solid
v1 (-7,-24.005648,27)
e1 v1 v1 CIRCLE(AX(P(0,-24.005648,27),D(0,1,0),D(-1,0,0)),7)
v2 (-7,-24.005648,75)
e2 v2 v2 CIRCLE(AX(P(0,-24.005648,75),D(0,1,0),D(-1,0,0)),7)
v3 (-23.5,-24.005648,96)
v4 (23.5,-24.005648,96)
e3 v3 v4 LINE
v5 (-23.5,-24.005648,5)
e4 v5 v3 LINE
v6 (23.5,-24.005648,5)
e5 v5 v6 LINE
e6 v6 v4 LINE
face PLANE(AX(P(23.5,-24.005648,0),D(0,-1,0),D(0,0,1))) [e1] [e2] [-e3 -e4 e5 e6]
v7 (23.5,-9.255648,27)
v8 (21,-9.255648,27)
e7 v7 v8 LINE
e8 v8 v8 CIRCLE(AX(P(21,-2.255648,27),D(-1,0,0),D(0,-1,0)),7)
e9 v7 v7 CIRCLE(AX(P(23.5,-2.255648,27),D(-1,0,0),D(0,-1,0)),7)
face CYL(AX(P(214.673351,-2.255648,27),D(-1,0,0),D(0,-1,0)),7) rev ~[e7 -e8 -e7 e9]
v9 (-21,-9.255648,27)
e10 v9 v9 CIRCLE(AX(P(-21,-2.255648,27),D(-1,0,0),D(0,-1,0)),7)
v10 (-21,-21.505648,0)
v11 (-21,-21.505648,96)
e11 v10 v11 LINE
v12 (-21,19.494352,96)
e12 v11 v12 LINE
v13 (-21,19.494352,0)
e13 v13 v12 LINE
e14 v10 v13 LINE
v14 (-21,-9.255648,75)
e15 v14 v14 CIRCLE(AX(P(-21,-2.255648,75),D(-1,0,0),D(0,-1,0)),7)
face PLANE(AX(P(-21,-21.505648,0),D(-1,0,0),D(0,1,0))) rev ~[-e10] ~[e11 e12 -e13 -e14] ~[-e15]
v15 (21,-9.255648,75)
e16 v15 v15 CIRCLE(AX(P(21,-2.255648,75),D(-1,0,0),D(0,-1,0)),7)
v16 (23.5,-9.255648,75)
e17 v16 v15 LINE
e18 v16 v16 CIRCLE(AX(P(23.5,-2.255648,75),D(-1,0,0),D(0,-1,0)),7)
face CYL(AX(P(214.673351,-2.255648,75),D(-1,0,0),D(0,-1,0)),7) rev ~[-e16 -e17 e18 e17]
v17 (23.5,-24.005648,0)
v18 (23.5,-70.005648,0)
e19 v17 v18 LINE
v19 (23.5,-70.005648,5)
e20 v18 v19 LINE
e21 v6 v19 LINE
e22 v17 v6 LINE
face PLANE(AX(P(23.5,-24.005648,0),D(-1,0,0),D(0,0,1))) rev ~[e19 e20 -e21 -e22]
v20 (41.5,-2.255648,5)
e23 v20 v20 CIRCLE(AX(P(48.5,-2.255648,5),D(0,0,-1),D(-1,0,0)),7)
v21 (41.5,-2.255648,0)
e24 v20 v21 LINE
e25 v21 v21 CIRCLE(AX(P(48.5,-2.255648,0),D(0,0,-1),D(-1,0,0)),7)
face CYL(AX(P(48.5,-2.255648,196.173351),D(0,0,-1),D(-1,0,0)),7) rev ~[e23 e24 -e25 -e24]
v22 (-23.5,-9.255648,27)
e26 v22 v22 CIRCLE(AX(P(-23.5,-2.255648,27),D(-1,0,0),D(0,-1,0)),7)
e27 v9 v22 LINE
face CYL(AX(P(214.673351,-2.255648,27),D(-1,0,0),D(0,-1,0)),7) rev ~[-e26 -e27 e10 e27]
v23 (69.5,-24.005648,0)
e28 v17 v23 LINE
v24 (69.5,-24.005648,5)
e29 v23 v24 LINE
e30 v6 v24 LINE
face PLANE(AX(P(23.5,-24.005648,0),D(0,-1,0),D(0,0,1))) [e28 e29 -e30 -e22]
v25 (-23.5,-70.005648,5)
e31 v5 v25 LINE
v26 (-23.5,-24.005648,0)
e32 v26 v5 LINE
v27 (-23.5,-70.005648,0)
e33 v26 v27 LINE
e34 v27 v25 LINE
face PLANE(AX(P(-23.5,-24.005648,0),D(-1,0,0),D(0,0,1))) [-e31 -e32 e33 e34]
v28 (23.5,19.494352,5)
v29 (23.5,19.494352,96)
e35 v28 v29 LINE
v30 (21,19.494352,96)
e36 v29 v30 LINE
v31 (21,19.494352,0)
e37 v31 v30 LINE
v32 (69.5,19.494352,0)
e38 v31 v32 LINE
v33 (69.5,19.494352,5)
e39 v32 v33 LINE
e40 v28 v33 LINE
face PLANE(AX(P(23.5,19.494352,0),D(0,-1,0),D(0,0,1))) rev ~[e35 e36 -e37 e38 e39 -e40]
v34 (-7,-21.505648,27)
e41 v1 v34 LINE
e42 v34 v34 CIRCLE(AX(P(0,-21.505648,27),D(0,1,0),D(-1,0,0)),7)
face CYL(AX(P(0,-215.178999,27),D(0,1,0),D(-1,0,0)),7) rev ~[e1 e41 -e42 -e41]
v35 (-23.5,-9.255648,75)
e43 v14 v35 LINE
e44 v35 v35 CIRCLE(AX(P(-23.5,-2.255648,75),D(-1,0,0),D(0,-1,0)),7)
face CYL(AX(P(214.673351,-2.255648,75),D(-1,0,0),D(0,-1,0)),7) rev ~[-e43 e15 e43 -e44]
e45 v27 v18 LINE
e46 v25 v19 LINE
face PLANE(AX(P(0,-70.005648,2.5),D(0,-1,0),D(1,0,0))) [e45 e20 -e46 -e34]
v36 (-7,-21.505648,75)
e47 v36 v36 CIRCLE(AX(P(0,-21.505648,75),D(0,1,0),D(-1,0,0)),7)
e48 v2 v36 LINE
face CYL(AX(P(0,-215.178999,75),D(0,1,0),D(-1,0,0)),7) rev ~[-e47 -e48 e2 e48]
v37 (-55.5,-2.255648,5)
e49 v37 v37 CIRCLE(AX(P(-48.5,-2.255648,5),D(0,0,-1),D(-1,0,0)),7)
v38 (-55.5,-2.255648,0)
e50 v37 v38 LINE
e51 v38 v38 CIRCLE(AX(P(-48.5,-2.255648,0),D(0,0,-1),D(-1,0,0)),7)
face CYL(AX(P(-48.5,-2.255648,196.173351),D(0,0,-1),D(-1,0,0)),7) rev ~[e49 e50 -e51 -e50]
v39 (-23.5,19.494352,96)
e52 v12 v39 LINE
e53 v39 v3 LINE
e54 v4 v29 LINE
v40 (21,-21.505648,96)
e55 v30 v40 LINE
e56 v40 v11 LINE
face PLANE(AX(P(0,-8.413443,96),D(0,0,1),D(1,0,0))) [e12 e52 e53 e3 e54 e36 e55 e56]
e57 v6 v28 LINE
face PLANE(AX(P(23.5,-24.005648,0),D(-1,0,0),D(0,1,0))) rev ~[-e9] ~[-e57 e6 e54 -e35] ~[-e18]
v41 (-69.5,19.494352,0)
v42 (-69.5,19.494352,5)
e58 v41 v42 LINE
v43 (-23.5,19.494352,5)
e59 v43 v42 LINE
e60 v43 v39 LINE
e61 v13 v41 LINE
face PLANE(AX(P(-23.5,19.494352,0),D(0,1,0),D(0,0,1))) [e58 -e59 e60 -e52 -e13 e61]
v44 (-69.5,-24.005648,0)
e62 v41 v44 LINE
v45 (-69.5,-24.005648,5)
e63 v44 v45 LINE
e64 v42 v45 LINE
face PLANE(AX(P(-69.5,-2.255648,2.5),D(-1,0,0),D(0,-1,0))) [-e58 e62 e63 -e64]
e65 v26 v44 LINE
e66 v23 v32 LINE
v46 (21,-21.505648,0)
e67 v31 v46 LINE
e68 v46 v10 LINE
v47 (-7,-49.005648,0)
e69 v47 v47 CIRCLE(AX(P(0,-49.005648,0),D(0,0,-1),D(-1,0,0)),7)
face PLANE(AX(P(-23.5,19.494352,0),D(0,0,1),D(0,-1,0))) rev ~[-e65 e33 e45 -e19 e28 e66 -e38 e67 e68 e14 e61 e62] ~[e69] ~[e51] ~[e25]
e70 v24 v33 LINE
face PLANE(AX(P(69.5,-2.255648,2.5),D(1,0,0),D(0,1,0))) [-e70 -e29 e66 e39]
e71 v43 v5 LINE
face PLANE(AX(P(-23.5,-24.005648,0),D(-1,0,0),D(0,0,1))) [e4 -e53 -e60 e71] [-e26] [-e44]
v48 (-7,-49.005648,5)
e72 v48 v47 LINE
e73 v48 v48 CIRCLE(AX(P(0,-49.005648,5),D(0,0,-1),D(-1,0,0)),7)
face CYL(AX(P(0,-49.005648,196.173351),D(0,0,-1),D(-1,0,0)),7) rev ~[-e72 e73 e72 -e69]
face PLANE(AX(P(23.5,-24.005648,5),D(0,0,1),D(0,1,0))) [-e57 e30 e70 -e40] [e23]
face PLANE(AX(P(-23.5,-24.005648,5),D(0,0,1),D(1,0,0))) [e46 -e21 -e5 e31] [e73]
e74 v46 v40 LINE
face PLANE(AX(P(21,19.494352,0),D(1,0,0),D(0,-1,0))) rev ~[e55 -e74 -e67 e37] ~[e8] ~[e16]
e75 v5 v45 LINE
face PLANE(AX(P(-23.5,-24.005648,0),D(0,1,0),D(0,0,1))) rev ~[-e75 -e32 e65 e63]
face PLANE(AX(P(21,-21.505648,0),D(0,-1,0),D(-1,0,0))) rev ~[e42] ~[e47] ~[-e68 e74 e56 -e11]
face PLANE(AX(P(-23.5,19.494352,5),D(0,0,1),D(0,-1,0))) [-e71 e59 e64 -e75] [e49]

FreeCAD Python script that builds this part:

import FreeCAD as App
import Part
import Sketcher
Q = App.Units.Quantity

doc = App.newDocument("Part")
body = doc.addObject("PartDesign::Body", "Body")

# Sketch on XY plane
sketch1 = doc.addObject("Sketcher::SketchObject", "Sketch")
body.addObject(sketch1)
sketch1.AttachmentSupport = (doc.XY_Plane, [""])
sketch1.MapMode = "FlatFace"
sketch1.addGeometry(Part.LineSegment(App.Vector(-21, -21.505648, 0), App.Vector(-21, 19.494352, 0)), False)
sketch1.addGeometry(Part.LineSegment(App.Vector(-21, 19.494352, 0), App.Vector(-23.5, 19.494352, 0)), False)
sketch1.addGeometry(Part.LineSegment(App.Vector(-23.5, 19.494352, 0), App.Vector(-23.5, -24.005648, 0)), False)
sketch1.addGeometry(Part.LineSegment(App.Vector(-23.5, -24.005648, 0), App.Vector(23.5, -24.005648, 0)), False)
sketch1.addGeometry(Part.LineSegment(App.Vector(23.5, -24.005648, 0), App.Vector(23.5, 19.494352, 0)), False)
sketch1.addGeometry(Part.LineSegment(App.Vector(23.5, 19.494352, 0), App.Vector(21, 19.494352, 0)), False)
sketch1.addGeometry(Part.LineSegment(App.Vector(21, 19.494352, 0), App.Vector(21, -21.505648, 0)), False)
sketch1.addGeometry(Part.LineSegment(App.Vector(21, -21.505648, 0), App.Vector(-21, -21.505648, 0)), False)
sketch1.addConstraint(Sketcher.Constraint("Coincident", 0, 2, 1, 1))
sketch1.addConstraint(Sketcher.Constraint("Coincident", 1, 2, 2, 1))
sketch1.addConstraint(Sketcher.Constraint("Coincident", 2, 2, 3, 1))
sketch1.addConstraint(Sketcher.Constraint("Coincident", 3, 2, 4, 1))
sketch1.addConstraint(Sketcher.Constraint("Coincident", 4, 2, 5, 1))
sketch1.addConstraint(Sketcher.Constraint("Coincident", 5, 2, 6, 1))
sketch1.addConstraint(Sketcher.Constraint("Coincident", 6, 2, 7, 1))
sketch1.addConstraint(Sketcher.Constraint("Coincident", 7, 2, 0, 1))
sketch1.addConstraint(Sketcher.Constraint("Vertical", 0))
sketch1.addConstraint(Sketcher.Constraint("Horizontal", 1))
sketch1.addConstraint(Sketcher.Constraint("Vertical", 2))
sketch1.addConstraint(Sketcher.Constraint("Horizontal", 3))
sketch1.addConstraint(Sketcher.Constraint("Vertical", 4))
sketch1.addConstraint(Sketcher.Constraint("Horizontal", 5))
sketch1.addConstraint(Sketcher.Constraint("Vertical", 6))
sketch1.addConstraint(Sketcher.Constraint("Horizontal", 7))
sketch1.addConstraint(Sketcher.Constraint("Symmetric", 1, 2, 4, 2, -2))
sketch1.addConstraint(Sketcher.Constraint("Equal", 1, 5))
sketch1.addConstraint(Sketcher.Constraint("DistanceX", 3, 1, 3, 2, Q("47 mm")))
sketch1.addConstraint(Sketcher.Constraint("DistanceX", 7, 2, 7, 1, Q("42 mm")))
sketch1.addConstraint(Sketcher.Constraint("DistanceY", 0, 1, 0, 2, Q("41 mm")))
sketch1.addConstraint(Sketcher.Constraint("DistanceY", 2, 2, 2, 1, Q("43.5 mm")))
sketch1.addConstraint(Sketcher.Constraint("DistanceY", -1, 1, 0, 2, Q("19.494352 mm")))
pad1 = doc.addObject("PartDesign::Pad", "Pad")
body.addObject(pad1)
pad1.Profile = sketch1
pad1.Length = 96

# Sketch on YZ plane
sketch2 = doc.addObject("Sketcher::SketchObject", "Sketch001")
body.addObject(sketch2)
sketch2.AttachmentSupport = (doc.YZ_Plane, [""])
sketch2.MapMode = "FlatFace"
sketch2.AttachmentOffset = App.Placement(App.Vector(0, 0, 23.5), App.Rotation())
sketch2.addGeometry(Part.LineSegment(App.Vector(-24.005648, 5, 0), App.Vector(-24.005648, 0, 0)), False)
sketch2.addGeometry(Part.LineSegment(App.Vector(-24.005648, 0, 0), App.Vector(19.494352, 0, 0)), False)
sketch2.addGeometry(Part.LineSegment(App.Vector(19.494352, 0, 0), App.Vector(19.494352, 5, 0)), False)
sketch2.addGeometry(Part.LineSegment(App.Vector(19.494352, 5, 0), App.Vector(-24.005648, 5, 0)), False)
sketch2.addConstraint(Sketcher.Constraint("Coincident", 0, 2, 1, 1))
sketch2.addConstraint(Sketcher.Constraint("Coincident", 1, 2, 2, 1))
sketch2.addConstraint(Sketcher.Constraint("Coincident", 2, 2, 3, 1))
sketch2.addConstraint(Sketcher.Constraint("Coincident", 3, 2, 0, 1))
sketch2.addConstraint(Sketcher.Constraint("Vertical", 0))
sketch2.addConstraint(Sketcher.Constraint("Horizontal", 1))
sketch2.addConstraint(Sketcher.Constraint("Vertical", 2))
sketch2.addConstraint(Sketcher.Constraint("Horizontal", 3))
sketch2.addConstraint(Sketcher.Constraint("PointOnObject", 0, 2, -1))
sketch2.addConstraint(Sketcher.Constraint("DistanceY", 0, 2, 0, 1, Q("5 mm")))
sketch2.addConstraint(Sketcher.Constraint("DistanceX", 1, 1, 1, 2, Q("43.5 mm")))
sketch2.addConstraint(Sketcher.Constraint("DistanceX", 0, 2, -1, 1, Q("24.005648 mm")))
pad2 = doc.addObject("PartDesign::Pad", "Pad001")
body.addObject(pad2)
pad2.Profile = sketch2
pad2.Length = 46

# Sketch on XZ plane
sketch3 = doc.addObject("Sketcher::SketchObject", "Sketch002")
body.addObject(sketch3)
sketch3.AttachmentSupport = (doc.XZ_Plane, [""])
sketch3.MapMode = "FlatFace"
sketch3.AttachmentOffset = App.Placement(App.Vector(0, 0, 24.005648), App.Rotation())
sketch3.addGeometry(Part.LineSegment(App.Vector(-23.5, 5, 0), App.Vector(-23.5, 0, 0)), False)
sketch3.addGeometry(Part.LineSegment(App.Vector(-23.5, 0, 0), App.Vector(23.5, 0, 0)), False)
sketch3.addGeometry(Part.LineSegment(App.Vector(23.5, 0, 0), App.Vector(23.5, 5, 0)), False)
sketch3.addGeometry(Part.LineSegment(App.Vector(23.5, 5, 0), App.Vector(-23.5, 5, 0)), False)
sketch3.addConstraint(Sketcher.Constraint("Coincident", 0, 2, 1, 1))
sketch3.addConstraint(Sketcher.Constraint("Coincident", 1, 2, 2, 1))
sketch3.addConstraint(Sketcher.Constraint("Coincident", 2, 2, 3, 1))
sketch3.addConstraint(Sketcher.Constraint("Coincident", 3, 2, 0, 1))
sketch3.addConstraint(Sketcher.Constraint("Vertical", 0))
sketch3.addConstraint(Sketcher.Constraint("Horizontal", 1))
sketch3.addConstraint(Sketcher.Constraint("Vertical", 2))
sketch3.addConstraint(Sketcher.Constraint("Horizontal", 3))
sketch3.addConstraint(Sketcher.Constraint("Symmetric", 0, 2, 1, 2, -1, 1))
sketch3.addConstraint(Sketcher.Constraint("DistanceX", 1, 1, 1, 2, Q("47 mm")))
sketch3.addConstraint(Sketcher.Constraint("DistanceY", 0, 2, 0, 1, Q("5 mm")))
pad3 = doc.addObject("PartDesign::Pad", "Pad002")
body.addObject(pad3)
pad3.Profile = sketch3
pad3.Length = 46

# Sketch on YZ plane
sketch4 = doc.addObject("Sketcher::SketchObject", "Sketch003")
body.addObject(sketch4)
sketch4.AttachmentSupport = (doc.YZ_Plane, [""])
sketch4.MapMode = "FlatFace"
sketch4.AttachmentOffset = App.Placement(App.Vector(0, 0, -23.5), App.Rotation())
sketch4.addGeometry(Part.LineSegment(App.Vector(19.494352, 5, 0), App.Vector(19.494352, 0, 0)), False)
sketch4.addGeometry(Part.LineSegment(App.Vector(19.494352, 0, 0), App.Vector(-24.005648, 0, 0)), False)
sketch4.addGeometry(Part.LineSegment(App.Vector(-24.005648, 0, 0), App.Vector(-24.005648, 5, 0)), False)
sketch4.addGeometry(Part.LineSegment(App.Vector(-24.005648, 5, 0), App.Vector(19.494352, 5, 0)), False)
sketch4.addConstraint(Sketcher.Constraint("Coincident", 0, 2, 1, 1))
sketch4.addConstraint(Sketcher.Constraint("Coincident", 1, 2, 2, 1))
sketch4.addConstraint(Sketcher.Constraint("Coincident", 2, 2, 3, 1))
sketch4.addConstraint(Sketcher.Constraint("Coincident", 3, 2, 0, 1))
sketch4.addConstraint(Sketcher.Constraint("Vertical", 0))
sketch4.addConstraint(Sketcher.Constraint("Horizontal", 1))
sketch4.addConstraint(Sketcher.Constraint("Vertical", 2))
sketch4.addConstraint(Sketcher.Constraint("Horizontal", 3))
sketch4.addConstraint(Sketcher.Constraint("PointOnObject", 0, 2, -1))
sketch4.addConstraint(Sketcher.Constraint("DistanceY", 0, 2, 0, 1, Q("5 mm")))
sketch4.addConstraint(Sketcher.Constraint("DistanceX", 1, 2, 1, 1, Q("43.5 mm")))
sketch4.addConstraint(Sketcher.Constraint("DistanceX", -1, 1, 0, 2, Q("19.494352 mm")))
pad4 = doc.addObject("PartDesign::Pad", "Pad003")
body.addObject(pad4)
pad4.Profile = sketch4
pad4.Length = 46
pad4.Reversed = True

# Sketch on XY plane
sketch5 = doc.addObject("Sketcher::SketchObject", "Sketch004")
body.addObject(sketch5)
sketch5.AttachmentSupport = (doc.XY_Plane, [""])
sketch5.MapMode = "FlatFace"
sketch5.AttachmentOffset = App.Placement(App.Vector(0, 0, 5), App.Rotation())
sketch5.addGeometry(Part.Circle(App.Vector(-48.5, -2.255648, 0), App.Vector(0, 0, 1), 7), False)
sketch5.addGeometry(Part.Circle(App.Vector(0, -49.005648, 0), App.Vector(0, 0, 1), 7), False)
sketch5.addGeometry(Part.Circle(App.Vector(48.5, -2.255648, 0), App.Vector(0, 0, 1), 7), False)
sketch5.addConstraint(Sketcher.Constraint("Equal", 0, 1))
sketch5.addConstraint(Sketcher.Constraint("Equal", 1, 2))
sketch5.addConstraint(Sketcher.Constraint("Symmetric", 0, 3, 2, 3, -2))
sketch5.addConstraint(Sketcher.Constraint("PointOnObject", 1, 3, -2))
sketch5.addConstraint(Sketcher.Constraint("Diameter", 0, Q("14 mm")))
sketch5.addConstraint(Sketcher.Constraint("DistanceX", 0, 3, 2, 3, Q("97 mm")))
sketch5.addConstraint(Sketcher.Constraint("DistanceY", 1, 3, 0, 3, Q("46.75 mm")))
sketch5.addConstraint(Sketcher.Constraint("DistanceY", 0, 3, -1, 1, Q("2.255648 mm")))
doc.recompute()
hole = doc.addObject("PartDesign::Hole", "Hole")
body.addObject(hole)
hole.Profile = sketch5
hole.ThreadType = "None"
hole.Diameter = 14
hole.DepthType = "ThroughAll"

# Sketch on XZ plane
sketch6 = doc.addObject("Sketcher::SketchObject", "Sketch005")
body.addObject(sketch6)
sketch6.AttachmentSupport = (doc.XZ_Plane, [""])
sketch6.MapMode = "FlatFace"
sketch6.AttachmentOffset = App.Placement(App.Vector(0, 0, 24.005648), App.Rotation())
sketch6.addGeometry(Part.Circle(App.Vector(0, 75, 0), App.Vector(0, 0, 1), 7), False)
sketch6.addGeometry(Part.Circle(App.Vector(0, 27, 0), App.Vector(0, 0, 1), 7), False)
sketch6.addConstraint(Sketcher.Constraint("Equal", 0, 1))
sketch6.addConstraint(Sketcher.Constraint("PointOnObject", 0, 3, -2))
sketch6.addConstraint(Sketcher.Constraint("PointOnObject", 1, 3, -2))
sketch6.addConstraint(Sketcher.Constraint("Diameter", 0, Q("14 mm")))
sketch6.addConstraint(Sketcher.Constraint("DistanceY", -1, 1, 0, 3, Q("75 mm")))
sketch6.addConstraint(Sketcher.Constraint("DistanceY", -1, 1, 1, 3, Q("27 mm")))
doc.recompute()
hole2 = doc.addObject("PartDesign::Hole", "Hole001")
body.addObject(hole2)
hole2.Profile = sketch6
hole2.ThreadType = "None"
hole2.Diameter = 14
hole2.DepthType = "ThroughAll"

# Sketch on YZ plane
sketch7 = doc.addObject("Sketcher::SketchObject", "Sketch006")
body.addObject(sketch7)
sketch7.AttachmentSupport = (doc.YZ_Plane, [""])
sketch7.MapMode = "FlatFace"
sketch7.AttachmentOffset = App.Placement(App.Vector(0, 0, 23.5), App.Rotation())
sketch7.addGeometry(Part.Circle(App.Vector(-2.255648, 75, 0), App.Vector(0, 0, 1), 7), False)
sketch7.addGeometry(Part.Circle(App.Vector(-2.255648, 27, 0), App.Vector(0, 0, 1), 7), False)
sketch7.addConstraint(Sketcher.Constraint("Equal", 0, 1))
sketch7.addConstraint(Sketcher.Constraint("Vertical", 0, 3, 1, 3))
sketch7.addConstraint(Sketcher.Constraint("Diameter", 0, Q("14 mm")))
sketch7.addConstraint(Sketcher.Constraint("DistanceY", -1, 1, 0, 3, Q("75 mm")))
sketch7.addConstraint(Sketcher.Constraint("DistanceY", -1, 1, 1, 3, Q("27 mm")))
sketch7.addConstraint(Sketcher.Constraint("DistanceX", 0, 3, -1, 1, Q("2.255648 mm")))
doc.recompute()
hole3 = doc.addObject("PartDesign::Hole", "Hole002")
body.addObject(hole3)
hole3.Profile = sketch7
hole3.ThreadType = "None"
hole3.Diameter = 14
hole3.DepthType = "ThroughAll"

doc.recompute()
